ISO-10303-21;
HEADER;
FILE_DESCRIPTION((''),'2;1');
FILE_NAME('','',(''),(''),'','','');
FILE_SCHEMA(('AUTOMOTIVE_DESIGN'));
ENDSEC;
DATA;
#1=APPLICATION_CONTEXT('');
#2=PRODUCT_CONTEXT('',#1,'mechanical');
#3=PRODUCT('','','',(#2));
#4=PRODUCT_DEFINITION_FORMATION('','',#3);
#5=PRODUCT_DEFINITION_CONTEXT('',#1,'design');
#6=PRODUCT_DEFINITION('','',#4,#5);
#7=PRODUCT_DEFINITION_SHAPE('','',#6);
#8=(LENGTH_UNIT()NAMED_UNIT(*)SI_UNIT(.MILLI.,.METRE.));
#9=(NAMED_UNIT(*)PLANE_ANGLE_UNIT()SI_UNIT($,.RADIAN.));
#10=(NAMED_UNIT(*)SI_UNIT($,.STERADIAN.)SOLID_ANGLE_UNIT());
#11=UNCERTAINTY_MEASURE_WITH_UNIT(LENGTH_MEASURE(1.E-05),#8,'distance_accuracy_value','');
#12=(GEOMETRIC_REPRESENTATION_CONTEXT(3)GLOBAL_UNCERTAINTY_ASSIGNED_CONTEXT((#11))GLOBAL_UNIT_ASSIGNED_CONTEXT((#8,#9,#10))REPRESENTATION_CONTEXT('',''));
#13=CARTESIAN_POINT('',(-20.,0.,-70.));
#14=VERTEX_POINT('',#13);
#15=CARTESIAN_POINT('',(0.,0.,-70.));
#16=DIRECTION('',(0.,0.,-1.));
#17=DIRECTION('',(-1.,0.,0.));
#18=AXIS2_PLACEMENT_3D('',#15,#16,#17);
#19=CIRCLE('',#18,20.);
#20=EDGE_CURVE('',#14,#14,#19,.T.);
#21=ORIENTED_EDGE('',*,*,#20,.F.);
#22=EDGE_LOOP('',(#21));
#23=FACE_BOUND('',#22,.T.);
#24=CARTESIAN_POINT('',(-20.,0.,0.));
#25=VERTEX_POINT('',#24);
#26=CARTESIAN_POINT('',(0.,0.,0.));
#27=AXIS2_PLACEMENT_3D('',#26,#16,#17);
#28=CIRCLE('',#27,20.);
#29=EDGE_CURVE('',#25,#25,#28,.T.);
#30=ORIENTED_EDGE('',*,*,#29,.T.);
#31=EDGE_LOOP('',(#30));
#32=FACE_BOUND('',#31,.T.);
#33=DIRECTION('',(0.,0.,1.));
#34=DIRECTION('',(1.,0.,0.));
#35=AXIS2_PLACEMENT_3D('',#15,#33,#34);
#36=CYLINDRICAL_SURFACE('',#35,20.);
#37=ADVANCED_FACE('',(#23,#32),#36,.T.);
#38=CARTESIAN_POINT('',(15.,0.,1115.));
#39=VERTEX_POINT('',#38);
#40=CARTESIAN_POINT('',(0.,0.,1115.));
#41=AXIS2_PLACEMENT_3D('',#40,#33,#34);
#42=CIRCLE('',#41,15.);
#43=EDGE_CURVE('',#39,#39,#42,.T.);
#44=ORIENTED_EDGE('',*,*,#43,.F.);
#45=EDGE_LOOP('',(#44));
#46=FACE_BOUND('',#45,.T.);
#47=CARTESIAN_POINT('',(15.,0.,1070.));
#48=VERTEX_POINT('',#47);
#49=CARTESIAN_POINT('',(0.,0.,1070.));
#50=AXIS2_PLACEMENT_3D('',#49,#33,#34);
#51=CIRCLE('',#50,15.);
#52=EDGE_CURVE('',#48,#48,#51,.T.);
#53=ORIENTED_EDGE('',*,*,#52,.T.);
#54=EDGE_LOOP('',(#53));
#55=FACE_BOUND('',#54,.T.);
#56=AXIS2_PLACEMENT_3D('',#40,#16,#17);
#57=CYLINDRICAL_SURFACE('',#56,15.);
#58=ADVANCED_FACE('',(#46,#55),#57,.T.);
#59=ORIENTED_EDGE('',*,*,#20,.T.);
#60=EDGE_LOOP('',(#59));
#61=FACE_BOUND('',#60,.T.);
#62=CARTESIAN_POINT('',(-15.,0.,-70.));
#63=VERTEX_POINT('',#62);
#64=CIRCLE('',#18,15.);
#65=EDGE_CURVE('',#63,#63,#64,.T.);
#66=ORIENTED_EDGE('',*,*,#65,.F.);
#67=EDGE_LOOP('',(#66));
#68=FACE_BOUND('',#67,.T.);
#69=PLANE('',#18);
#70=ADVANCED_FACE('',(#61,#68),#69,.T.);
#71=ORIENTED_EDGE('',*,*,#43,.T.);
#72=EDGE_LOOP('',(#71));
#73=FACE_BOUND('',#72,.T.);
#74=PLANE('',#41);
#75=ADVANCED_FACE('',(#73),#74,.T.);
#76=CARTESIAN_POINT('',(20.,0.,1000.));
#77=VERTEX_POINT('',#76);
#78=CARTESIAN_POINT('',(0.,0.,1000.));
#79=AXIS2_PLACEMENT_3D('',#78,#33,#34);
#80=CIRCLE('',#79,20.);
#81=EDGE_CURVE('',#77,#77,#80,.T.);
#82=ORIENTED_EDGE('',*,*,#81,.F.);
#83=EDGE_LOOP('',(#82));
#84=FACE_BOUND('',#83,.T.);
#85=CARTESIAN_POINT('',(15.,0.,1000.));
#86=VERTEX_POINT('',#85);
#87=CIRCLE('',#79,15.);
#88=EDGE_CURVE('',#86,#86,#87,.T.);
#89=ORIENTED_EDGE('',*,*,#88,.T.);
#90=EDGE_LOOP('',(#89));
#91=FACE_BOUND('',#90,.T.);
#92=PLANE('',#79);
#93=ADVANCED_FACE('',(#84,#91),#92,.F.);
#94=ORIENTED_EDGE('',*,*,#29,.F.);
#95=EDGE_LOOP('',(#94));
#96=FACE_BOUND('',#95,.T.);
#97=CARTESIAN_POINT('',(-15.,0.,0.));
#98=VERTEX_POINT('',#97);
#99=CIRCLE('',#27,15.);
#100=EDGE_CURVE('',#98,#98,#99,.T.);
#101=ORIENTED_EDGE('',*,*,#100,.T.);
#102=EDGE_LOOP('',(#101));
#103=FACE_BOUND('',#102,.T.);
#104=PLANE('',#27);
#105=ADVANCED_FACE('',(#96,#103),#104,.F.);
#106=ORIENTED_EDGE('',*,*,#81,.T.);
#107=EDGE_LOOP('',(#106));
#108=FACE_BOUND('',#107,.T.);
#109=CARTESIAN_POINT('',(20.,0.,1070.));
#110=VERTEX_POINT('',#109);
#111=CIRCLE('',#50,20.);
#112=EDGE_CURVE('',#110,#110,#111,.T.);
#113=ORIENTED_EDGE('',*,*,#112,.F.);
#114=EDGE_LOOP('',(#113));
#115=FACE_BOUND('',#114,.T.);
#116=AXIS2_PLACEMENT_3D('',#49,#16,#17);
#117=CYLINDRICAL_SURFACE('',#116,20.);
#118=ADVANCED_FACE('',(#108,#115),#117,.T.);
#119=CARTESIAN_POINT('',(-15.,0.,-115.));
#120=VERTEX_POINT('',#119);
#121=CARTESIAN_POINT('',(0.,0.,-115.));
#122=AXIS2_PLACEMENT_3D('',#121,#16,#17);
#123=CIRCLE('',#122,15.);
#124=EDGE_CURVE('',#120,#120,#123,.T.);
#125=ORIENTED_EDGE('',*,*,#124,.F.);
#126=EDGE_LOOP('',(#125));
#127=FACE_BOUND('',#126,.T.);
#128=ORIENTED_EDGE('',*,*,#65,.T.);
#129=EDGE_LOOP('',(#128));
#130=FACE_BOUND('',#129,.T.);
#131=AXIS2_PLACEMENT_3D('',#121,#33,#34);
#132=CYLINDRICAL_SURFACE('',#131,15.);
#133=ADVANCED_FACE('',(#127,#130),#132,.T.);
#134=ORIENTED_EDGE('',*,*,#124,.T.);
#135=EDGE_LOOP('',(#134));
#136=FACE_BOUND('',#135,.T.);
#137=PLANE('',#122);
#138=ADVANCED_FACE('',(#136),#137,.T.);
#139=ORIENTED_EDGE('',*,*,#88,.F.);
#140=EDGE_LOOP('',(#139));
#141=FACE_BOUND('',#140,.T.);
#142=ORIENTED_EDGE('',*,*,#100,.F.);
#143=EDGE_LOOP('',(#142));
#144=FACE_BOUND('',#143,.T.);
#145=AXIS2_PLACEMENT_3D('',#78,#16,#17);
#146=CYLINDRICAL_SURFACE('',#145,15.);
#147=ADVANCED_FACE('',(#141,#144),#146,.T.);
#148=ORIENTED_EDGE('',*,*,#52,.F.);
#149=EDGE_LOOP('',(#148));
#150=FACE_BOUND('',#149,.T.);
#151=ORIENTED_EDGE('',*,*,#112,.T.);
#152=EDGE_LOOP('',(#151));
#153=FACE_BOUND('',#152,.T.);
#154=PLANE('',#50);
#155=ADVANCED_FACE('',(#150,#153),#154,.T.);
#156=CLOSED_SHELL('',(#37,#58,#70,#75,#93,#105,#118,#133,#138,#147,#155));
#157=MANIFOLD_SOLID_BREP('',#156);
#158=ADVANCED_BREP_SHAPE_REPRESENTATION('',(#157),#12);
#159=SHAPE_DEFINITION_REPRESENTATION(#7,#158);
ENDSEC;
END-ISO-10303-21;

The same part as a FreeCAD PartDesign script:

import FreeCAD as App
import Part
import Sketcher

doc = App.newDocument("Part")
body = doc.addObject("PartDesign::Body", "Body")

# Sketch on XY plane
sketch1 = doc.addObject("Sketcher::SketchObject", "Sketch")
body.addObject(sketch1)
sketch1.AttachmentSupport = (doc.XY_Plane, [""])
sketch1.MapMode = "FlatFace"
sketch1.addGeometry(Part.Circle(App.Vector(0, 0, 0), App.Vector(0, 0, 1), 15), False)
sketch1.addConstraint([
    Sketcher.Constraint("Coincident", 0, 3, -1, 1),
    Sketcher.Constraint("Diameter", 0, 30.0),
])
pad1 = doc.addObject("PartDesign::Pad", "Pad")
body.addObject(pad1)
pad1.Profile = sketch1
pad1.Length = 1000

# Sketch on XY plane
sketch2 = doc.addObject("Sketcher::SketchObject", "Sketch001")
body.addObject(sketch2)
sketch2.AttachmentSupport = (doc.XY_Plane, [""])
sketch2.MapMode = "FlatFace"
sketch2.AttachmentOffset = App.Placement(App.Vector(0, 0, 1000), App.Rotation())
sketch2.addGeometry(Part.Circle(App.Vector(0, 0, 0), App.Vector(0, 0, 1), 20), False)
sketch2.addConstraint([
    Sketcher.Constraint("Coincident", 0, 3, -1, 1),
    Sketcher.Constraint("Diameter", 0, 40.0),
])
pad2 = doc.addObject("PartDesign::Pad", "Pad001")
body.addObject(pad2)
pad2.Profile = sketch2
pad2.Length = 70

# Sketch on XY plane
sketch3 = doc.addObject("Sketcher::SketchObject", "Sketch002")
body.addObject(sketch3)
sketch3.AttachmentSupport = (doc.XY_Plane, [""])
sketch3.MapMode = "FlatFace"
sketch3.AttachmentOffset = App.Placement(App.Vector(0, 0, 1070), App.Rotation())
sketch3.addGeometry(Part.Circle(App.Vector(0, 0, 0), App.Vector(0, 0, 1), 15), False)
sketch3.addConstraint([
    Sketcher.Constraint("Coincident", 0, 3, -1, 1),
    Sketcher.Constraint("Diameter", 0, 30.0),
])
pad3 = doc.addObject("PartDesign::Pad", "Pad002")
body.addObject(pad3)
pad3.Profile = sketch3
pad3.Length = 45

# Sketch on XY plane
sketch4 = doc.addObject("Sketcher::SketchObject", "Sketch003")
body.addObject(sketch4)
sketch4.AttachmentSupport = (doc.XY_Plane, [""])
sketch4.MapMode = "FlatFace"
sketch4.addGeometry(Part.Circle(App.Vector(0, 0, 0), App.Vector(0, 0, 1), 20), False)
sketch4.addConstraint([
    Sketcher.Constraint("Coincident", 0, 3, -1, 1),
    Sketcher.Constraint("Diameter", 0, 40.0),
])
pad4 = doc.addObject("PartDesign::Pad", "Pad003")
body.addObject(pad4)
pad4.Profile = sketch4
pad4.Length = 70
pad4.Reversed = True

# Sketch on XY plane
sketch5 = doc.addObject("Sketcher::SketchObject", "Sketch004")
body.addObject(sketch5)
sketch5.AttachmentSupport = (doc.XY_Plane, [""])
sketch5.MapMode = "FlatFace"
sketch5.AttachmentOffset = App.Placement(App.Vector(0, 0, -70), App.Rotation())
sketch5.addGeometry(Part.Circle(App.Vector(0, 0, 0), App.Vector(0, 0, 1), 15), False)
sketch5.addConstraint([
    Sketcher.Constraint("Coincident", 0, 3, -1, 1),
    Sketcher.Constraint("Diameter", 0, 30.0),
])
pad5 = doc.addObject("PartDesign::Pad", "Pad004")
body.addObject(pad5)
pad5.Profile = sketch5
pad5.Length = 45
pad5.Reversed = True

doc.recompute()
